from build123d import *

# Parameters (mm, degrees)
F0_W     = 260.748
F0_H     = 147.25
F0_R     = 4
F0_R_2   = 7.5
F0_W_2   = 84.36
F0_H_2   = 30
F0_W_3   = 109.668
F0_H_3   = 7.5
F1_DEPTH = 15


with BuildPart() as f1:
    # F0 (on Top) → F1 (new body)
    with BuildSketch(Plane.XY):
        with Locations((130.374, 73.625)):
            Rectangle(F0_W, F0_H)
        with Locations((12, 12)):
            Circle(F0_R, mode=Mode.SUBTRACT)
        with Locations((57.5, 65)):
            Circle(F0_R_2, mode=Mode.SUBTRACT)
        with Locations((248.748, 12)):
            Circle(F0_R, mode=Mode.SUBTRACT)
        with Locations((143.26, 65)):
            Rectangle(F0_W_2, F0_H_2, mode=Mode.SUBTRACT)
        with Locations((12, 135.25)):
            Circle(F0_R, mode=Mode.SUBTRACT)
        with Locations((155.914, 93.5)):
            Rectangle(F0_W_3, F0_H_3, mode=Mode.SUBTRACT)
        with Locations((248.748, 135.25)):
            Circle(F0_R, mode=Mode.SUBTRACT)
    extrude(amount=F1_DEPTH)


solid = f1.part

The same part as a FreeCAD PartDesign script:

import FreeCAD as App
import Part
import Sketcher
Q = App.Units.Quantity

doc = App.newDocument("Part")
body = doc.addObject("PartDesign::Body", "Body")

# Sketch on XY plane
sketch1 = body.newObject("Sketcher::SketchObject", "Sketch")
sketch1.AttachmentSupport = (doc.getObject("XY_Plane"), [""])
sketch1.MapMode = "FlatFace"
sketch1.addGeometry(Part.LineSegment(App.Vector(0, 147.2, 0), App.Vector(0, 0, 0)), False)
sketch1.addGeometry(Part.LineSegment(App.Vector(0, 0, 0), App.Vector(260.7, 0, 0)), False)
sketch1.addGeometry(Part.LineSegment(App.Vector(260.7, 0, 0), App.Vector(260.7, 147.2, 0)), False)
sketch1.addGeometry(Part.LineSegment(App.Vector(260.7, 147.2, 0), App.Vector(0, 147.2, 0)), False)
sketch1.addGeometry(Part.Circle(App.Vector(12, 12, 0), App.Vector(0, 0, 1), 4), False)
sketch1.addGeometry(Part.Circle(App.Vector(57.5, 65, 0), App.Vector(0, 0, 1), 7.5), False)
sketch1.addGeometry(Part.Circle(App.Vector(248.7, 12, 0), App.Vector(0, 0, 1), 4), False)
sketch1.addGeometry(Part.LineSegment(App.Vector(185.4, 50, 0), App.Vector(101.1, 50, 0)), False)
sketch1.addGeometry(Part.LineSegment(App.Vector(101.1, 50, 0), App.Vector(101.1, 80, 0)), False)
sketch1.addGeometry(Part.LineSegment(App.Vector(101.1, 80, 0), App.Vector(185.4, 80, 0)), False)
sketch1.addGeometry(Part.LineSegment(App.Vector(185.4, 80, 0), App.Vector(185.4, 50, 0)), False)
sketch1.addGeometry(Part.Circle(App.Vector(12, 135.2, 0), App.Vector(0, 0, 1), 4), False)
sketch1.addGeometry(Part.LineSegment(App.Vector(210.7, 89.8, 0), App.Vector(101.1, 89.8, 0)), False)
sketch1.addGeometry(Part.LineSegment(App.Vector(101.1, 89.8, 0), App.Vector(101.1, 97.2, 0)), False)
sketch1.addGeometry(Part.LineSegment(App.Vector(101.1, 97.2, 0), App.Vector(210.7, 97.2, 0)), False)
sketch1.addGeometry(Part.LineSegment(App.Vector(210.7, 97.2, 0), App.Vector(210.7, 89.8, 0)), False)
sketch1.addGeometry(Part.Circle(App.Vector(248.7, 135.2, 0), App.Vector(0, 0, 1), 4), False)
sketch1.addConstraint(Sketcher.Constraint("Coincident", 0, 2, 1, 1))
sketch1.addConstraint(Sketcher.Constraint("Coincident", 1, 2, 2, 1))
sketch1.addConstraint(Sketcher.Constraint("Coincident", 2, 2, 3, 1))
sketch1.addConstraint(Sketcher.Constraint("Coincident", 3, 2, 0, 1))
sketch1.addConstraint(Sketcher.Constraint("Coincident", 7, 2, 8, 1))
sketch1.addConstraint(Sketcher.Constraint("Coincident", 8, 2, 9, 1))
sketch1.addConstraint(Sketcher.Constraint("Coincident", 9, 2, 10, 1))
sketch1.addConstraint(Sketcher.Constraint("Coincident", 10, 2, 7, 1))
sketch1.addConstraint(Sketcher.Constraint("Coincident", 12, 2, 13, 1))
sketch1.addConstraint(Sketcher.Constraint("Coincident", 13, 2, 14, 1))
sketch1.addConstraint(Sketcher.Constraint("Coincident", 14, 2, 15, 1))
sketch1.addConstraint(Sketcher.Constraint("Coincident", 15, 2, 12, 1))
sketch1.addConstraint(Sketcher.Constraint("Vertical", 0))
sketch1.addConstraint(Sketcher.Constraint("Horizontal", 1))
sketch1.addConstraint(Sketcher.Constraint("Vertical", 2))
sketch1.addConstraint(Sketcher.Constraint("Horizontal", 3))
sketch1.addConstraint(Sketcher.Constraint("Horizontal", 7))
sketch1.addConstraint(Sketcher.Constraint("Vertical", 8))
sketch1.addConstraint(Sketcher.Constraint("Horizontal", 9))
sketch1.addConstraint(Sketcher.Constraint("Vertical", 10))
sketch1.addConstraint(Sketcher.Constraint("Horizontal", 12))
sketch1.addConstraint(Sketcher.Constraint("Vertical", 13))
sketch1.addConstraint(Sketcher.Constraint("Horizontal", 14))
sketch1.addConstraint(Sketcher.Constraint("Vertical", 15))
sketch1.addConstraint(Sketcher.Constraint("Coincident", 0, 2, -1, 1))
sketch1.addConstraint(Sketcher.Constraint("Equal", 4, 6))
sketch1.addConstraint(Sketcher.Constraint("Equal", 6, 11))
sketch1.addConstraint(Sketcher.Constraint("Equal", 11, 16))
sketch1.addConstraint(Sketcher.Constraint("Horizontal", 4, 3, 6, 3))
sketch1.addConstraint(Sketcher.Constraint("Horizontal", 11, 3, 16, 3))
sketch1.addConstraint(Sketcher.Constraint("Vertical", 4, 3, 11, 3))
sketch1.addConstraint(Sketcher.Constraint("Vertical", 6, 3, 16, 3))
sketch1.addConstraint(Sketcher.Constraint("Vertical", 8, 2, 12, 2))
sketch1.addConstraint(Sketcher.Constraint("Diameter", 4, Q("8 mm")))
sketch1.addConstraint(Sketcher.Constraint("Diameter", 5, Q("15 mm")))
sketch1.addConstraint(Sketcher.Constraint("DistanceY", 8, 1, 8, 2, Q("30 mm")))
sketch1.addConstraint(Sketcher.Constraint("DistanceY", 13, 1, 13, 2, Q("7.5 mm")))
sketch1.addConstraint(Sketcher.Constraint("DistanceX", -1, 1, 4, 3, Q("12 mm")))
sketch1.addConstraint(Sketcher.Constraint("DistanceY", -1, 1, 4, 3, Q("12 mm")))
sketch1.addConstraint(Sketcher.Constraint("DistanceY", -1, 1, 5, 3, Q("65 mm")))
sketch1.addConstraint(Sketcher.Constraint("DistanceY", -1, 1, 7, 2, Q("50 mm")))
sketch1.addConstraint(Sketcher.Constraint("DistanceX", 6, 3, 1, 2, Q("12 mm")))
sketch1.addConstraint(Sketcher.Constraint("DistanceY", 16, 3, 2, 2, Q("12 mm")))
sketch1.addConstraint(Sketcher.Constraint("DistanceX", 14, 2, 16, 3, Q("38 mm")))
sketch1.addConstraint(Sketcher.Constraint("DistanceY", 14, 2, 16, 3, Q("38 mm")))
sketch1.addConstraint(Sketcher.Constraint("DistanceX", 7, 2, 7, 1, Q("84.36 mm")))
sketch1.addConstraint(Sketcher.Constraint("DistanceY", 0, 2, 0, 1, Q("147.25 mm")))
sketch1.addConstraint(Sketcher.Constraint("DistanceX", -1, 1, 5, 3, Q("57.5 mm")))
sketch1.addConstraint(Sketcher.Constraint("DistanceX", 1, 1, 1, 2, Q("260.748 mm")))
sketch1.addConstraint(Sketcher.Constraint("DistanceX", 12, 2, 12, 1, Q("109.668 mm")))
pad1 = body.newObject("PartDesign::Pad", "Pad")
pad1.Profile = sketch1
pad1.Length = 15

doc.recompute()
